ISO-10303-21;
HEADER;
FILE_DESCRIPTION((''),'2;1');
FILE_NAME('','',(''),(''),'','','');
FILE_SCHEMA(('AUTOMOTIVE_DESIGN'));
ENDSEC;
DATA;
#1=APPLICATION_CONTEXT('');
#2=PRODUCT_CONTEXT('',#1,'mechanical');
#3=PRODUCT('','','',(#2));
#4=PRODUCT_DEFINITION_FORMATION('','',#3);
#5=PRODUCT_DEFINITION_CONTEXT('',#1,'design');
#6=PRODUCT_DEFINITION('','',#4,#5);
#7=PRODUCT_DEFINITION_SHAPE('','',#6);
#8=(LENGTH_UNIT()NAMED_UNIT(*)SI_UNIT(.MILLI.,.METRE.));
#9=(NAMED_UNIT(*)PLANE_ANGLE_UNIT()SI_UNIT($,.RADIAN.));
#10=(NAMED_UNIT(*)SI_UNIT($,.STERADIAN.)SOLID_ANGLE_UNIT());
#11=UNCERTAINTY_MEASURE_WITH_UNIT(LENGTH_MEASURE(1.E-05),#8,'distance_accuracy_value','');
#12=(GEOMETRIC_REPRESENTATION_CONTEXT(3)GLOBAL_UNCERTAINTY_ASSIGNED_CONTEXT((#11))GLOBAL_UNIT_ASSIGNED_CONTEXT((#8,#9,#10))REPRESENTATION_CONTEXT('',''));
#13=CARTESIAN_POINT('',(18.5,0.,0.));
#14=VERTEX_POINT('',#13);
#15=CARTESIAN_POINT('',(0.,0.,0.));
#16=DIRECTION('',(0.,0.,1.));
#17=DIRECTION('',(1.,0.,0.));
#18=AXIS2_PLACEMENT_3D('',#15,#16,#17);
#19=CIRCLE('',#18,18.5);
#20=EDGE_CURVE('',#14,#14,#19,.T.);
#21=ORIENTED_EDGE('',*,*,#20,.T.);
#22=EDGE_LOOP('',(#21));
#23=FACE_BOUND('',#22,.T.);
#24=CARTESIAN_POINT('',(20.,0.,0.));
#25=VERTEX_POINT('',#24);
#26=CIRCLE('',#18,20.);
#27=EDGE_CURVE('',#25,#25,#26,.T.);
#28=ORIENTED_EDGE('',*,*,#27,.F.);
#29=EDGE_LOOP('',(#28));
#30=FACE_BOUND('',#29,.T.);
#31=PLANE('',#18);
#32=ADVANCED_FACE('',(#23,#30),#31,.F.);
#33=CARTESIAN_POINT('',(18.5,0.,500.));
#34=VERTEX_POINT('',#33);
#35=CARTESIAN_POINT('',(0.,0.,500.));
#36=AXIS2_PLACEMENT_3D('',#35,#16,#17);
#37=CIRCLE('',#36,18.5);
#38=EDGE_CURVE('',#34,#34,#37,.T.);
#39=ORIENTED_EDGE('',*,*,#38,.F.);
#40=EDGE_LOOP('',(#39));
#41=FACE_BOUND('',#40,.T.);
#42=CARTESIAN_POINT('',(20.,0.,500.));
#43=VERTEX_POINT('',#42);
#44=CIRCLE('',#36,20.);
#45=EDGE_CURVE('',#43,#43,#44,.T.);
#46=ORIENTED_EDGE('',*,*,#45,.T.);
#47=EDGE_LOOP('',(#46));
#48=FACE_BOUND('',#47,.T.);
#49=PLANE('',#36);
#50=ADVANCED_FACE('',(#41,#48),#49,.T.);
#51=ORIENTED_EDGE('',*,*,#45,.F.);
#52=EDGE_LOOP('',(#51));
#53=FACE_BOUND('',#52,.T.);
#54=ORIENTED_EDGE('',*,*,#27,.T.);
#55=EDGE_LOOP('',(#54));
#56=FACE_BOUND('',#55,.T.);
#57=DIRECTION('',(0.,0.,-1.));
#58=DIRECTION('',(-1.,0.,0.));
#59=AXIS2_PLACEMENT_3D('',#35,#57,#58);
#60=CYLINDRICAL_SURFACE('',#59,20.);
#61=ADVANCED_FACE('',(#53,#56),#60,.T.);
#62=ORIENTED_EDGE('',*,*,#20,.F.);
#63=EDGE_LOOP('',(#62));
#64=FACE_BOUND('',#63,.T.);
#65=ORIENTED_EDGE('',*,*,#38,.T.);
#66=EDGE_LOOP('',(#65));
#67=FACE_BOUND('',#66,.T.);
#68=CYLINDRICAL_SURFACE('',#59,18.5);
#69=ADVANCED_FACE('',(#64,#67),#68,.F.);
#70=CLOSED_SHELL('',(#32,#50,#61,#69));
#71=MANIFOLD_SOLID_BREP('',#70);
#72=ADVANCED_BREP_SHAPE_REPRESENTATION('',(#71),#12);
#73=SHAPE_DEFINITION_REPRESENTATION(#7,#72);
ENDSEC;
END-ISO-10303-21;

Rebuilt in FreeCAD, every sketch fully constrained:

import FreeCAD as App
import Part
import Sketcher
from FreeCAD import Vector
Q = App.Units.Quantity

doc = App.newDocument("Part")
body = doc.addObject("PartDesign::Body", "Body")

# Sketch on XY plane
sketch1 = doc.addObject("Sketcher::SketchObject", "Sketch")
body.addObject(sketch1)
sketch1.AttachmentSupport = (doc.XY_Plane, [""])
sketch1.MapMode = "FlatFace"
sketch1.addGeometry(Part.Circle(Vector(0, 0, 0), Vector(0, 0, 1), 20), False)
sketch1.addGeometry(Part.Circle(Vector(0, 0, 0), Vector(0, 0, 1), 18.5), False)
sketch1.addConstraint(Sketcher.Constraint("Coincident", 0, 3, -1, 1))
sketch1.addConstraint(Sketcher.Constraint("Coincident", 1, 3, -1, 1))
sketch1.addConstraint(Sketcher.Constraint("Diameter", 0, Q("40 mm")))
sketch1.addConstraint(Sketcher.Constraint("Diameter", 1, Q("37 mm")))
pad1 = doc.addObject("PartDesign::Pad", "Pad")
body.addObject(pad1)
pad1.Profile = sketch1
pad1.Length = 500

doc.recompute()
